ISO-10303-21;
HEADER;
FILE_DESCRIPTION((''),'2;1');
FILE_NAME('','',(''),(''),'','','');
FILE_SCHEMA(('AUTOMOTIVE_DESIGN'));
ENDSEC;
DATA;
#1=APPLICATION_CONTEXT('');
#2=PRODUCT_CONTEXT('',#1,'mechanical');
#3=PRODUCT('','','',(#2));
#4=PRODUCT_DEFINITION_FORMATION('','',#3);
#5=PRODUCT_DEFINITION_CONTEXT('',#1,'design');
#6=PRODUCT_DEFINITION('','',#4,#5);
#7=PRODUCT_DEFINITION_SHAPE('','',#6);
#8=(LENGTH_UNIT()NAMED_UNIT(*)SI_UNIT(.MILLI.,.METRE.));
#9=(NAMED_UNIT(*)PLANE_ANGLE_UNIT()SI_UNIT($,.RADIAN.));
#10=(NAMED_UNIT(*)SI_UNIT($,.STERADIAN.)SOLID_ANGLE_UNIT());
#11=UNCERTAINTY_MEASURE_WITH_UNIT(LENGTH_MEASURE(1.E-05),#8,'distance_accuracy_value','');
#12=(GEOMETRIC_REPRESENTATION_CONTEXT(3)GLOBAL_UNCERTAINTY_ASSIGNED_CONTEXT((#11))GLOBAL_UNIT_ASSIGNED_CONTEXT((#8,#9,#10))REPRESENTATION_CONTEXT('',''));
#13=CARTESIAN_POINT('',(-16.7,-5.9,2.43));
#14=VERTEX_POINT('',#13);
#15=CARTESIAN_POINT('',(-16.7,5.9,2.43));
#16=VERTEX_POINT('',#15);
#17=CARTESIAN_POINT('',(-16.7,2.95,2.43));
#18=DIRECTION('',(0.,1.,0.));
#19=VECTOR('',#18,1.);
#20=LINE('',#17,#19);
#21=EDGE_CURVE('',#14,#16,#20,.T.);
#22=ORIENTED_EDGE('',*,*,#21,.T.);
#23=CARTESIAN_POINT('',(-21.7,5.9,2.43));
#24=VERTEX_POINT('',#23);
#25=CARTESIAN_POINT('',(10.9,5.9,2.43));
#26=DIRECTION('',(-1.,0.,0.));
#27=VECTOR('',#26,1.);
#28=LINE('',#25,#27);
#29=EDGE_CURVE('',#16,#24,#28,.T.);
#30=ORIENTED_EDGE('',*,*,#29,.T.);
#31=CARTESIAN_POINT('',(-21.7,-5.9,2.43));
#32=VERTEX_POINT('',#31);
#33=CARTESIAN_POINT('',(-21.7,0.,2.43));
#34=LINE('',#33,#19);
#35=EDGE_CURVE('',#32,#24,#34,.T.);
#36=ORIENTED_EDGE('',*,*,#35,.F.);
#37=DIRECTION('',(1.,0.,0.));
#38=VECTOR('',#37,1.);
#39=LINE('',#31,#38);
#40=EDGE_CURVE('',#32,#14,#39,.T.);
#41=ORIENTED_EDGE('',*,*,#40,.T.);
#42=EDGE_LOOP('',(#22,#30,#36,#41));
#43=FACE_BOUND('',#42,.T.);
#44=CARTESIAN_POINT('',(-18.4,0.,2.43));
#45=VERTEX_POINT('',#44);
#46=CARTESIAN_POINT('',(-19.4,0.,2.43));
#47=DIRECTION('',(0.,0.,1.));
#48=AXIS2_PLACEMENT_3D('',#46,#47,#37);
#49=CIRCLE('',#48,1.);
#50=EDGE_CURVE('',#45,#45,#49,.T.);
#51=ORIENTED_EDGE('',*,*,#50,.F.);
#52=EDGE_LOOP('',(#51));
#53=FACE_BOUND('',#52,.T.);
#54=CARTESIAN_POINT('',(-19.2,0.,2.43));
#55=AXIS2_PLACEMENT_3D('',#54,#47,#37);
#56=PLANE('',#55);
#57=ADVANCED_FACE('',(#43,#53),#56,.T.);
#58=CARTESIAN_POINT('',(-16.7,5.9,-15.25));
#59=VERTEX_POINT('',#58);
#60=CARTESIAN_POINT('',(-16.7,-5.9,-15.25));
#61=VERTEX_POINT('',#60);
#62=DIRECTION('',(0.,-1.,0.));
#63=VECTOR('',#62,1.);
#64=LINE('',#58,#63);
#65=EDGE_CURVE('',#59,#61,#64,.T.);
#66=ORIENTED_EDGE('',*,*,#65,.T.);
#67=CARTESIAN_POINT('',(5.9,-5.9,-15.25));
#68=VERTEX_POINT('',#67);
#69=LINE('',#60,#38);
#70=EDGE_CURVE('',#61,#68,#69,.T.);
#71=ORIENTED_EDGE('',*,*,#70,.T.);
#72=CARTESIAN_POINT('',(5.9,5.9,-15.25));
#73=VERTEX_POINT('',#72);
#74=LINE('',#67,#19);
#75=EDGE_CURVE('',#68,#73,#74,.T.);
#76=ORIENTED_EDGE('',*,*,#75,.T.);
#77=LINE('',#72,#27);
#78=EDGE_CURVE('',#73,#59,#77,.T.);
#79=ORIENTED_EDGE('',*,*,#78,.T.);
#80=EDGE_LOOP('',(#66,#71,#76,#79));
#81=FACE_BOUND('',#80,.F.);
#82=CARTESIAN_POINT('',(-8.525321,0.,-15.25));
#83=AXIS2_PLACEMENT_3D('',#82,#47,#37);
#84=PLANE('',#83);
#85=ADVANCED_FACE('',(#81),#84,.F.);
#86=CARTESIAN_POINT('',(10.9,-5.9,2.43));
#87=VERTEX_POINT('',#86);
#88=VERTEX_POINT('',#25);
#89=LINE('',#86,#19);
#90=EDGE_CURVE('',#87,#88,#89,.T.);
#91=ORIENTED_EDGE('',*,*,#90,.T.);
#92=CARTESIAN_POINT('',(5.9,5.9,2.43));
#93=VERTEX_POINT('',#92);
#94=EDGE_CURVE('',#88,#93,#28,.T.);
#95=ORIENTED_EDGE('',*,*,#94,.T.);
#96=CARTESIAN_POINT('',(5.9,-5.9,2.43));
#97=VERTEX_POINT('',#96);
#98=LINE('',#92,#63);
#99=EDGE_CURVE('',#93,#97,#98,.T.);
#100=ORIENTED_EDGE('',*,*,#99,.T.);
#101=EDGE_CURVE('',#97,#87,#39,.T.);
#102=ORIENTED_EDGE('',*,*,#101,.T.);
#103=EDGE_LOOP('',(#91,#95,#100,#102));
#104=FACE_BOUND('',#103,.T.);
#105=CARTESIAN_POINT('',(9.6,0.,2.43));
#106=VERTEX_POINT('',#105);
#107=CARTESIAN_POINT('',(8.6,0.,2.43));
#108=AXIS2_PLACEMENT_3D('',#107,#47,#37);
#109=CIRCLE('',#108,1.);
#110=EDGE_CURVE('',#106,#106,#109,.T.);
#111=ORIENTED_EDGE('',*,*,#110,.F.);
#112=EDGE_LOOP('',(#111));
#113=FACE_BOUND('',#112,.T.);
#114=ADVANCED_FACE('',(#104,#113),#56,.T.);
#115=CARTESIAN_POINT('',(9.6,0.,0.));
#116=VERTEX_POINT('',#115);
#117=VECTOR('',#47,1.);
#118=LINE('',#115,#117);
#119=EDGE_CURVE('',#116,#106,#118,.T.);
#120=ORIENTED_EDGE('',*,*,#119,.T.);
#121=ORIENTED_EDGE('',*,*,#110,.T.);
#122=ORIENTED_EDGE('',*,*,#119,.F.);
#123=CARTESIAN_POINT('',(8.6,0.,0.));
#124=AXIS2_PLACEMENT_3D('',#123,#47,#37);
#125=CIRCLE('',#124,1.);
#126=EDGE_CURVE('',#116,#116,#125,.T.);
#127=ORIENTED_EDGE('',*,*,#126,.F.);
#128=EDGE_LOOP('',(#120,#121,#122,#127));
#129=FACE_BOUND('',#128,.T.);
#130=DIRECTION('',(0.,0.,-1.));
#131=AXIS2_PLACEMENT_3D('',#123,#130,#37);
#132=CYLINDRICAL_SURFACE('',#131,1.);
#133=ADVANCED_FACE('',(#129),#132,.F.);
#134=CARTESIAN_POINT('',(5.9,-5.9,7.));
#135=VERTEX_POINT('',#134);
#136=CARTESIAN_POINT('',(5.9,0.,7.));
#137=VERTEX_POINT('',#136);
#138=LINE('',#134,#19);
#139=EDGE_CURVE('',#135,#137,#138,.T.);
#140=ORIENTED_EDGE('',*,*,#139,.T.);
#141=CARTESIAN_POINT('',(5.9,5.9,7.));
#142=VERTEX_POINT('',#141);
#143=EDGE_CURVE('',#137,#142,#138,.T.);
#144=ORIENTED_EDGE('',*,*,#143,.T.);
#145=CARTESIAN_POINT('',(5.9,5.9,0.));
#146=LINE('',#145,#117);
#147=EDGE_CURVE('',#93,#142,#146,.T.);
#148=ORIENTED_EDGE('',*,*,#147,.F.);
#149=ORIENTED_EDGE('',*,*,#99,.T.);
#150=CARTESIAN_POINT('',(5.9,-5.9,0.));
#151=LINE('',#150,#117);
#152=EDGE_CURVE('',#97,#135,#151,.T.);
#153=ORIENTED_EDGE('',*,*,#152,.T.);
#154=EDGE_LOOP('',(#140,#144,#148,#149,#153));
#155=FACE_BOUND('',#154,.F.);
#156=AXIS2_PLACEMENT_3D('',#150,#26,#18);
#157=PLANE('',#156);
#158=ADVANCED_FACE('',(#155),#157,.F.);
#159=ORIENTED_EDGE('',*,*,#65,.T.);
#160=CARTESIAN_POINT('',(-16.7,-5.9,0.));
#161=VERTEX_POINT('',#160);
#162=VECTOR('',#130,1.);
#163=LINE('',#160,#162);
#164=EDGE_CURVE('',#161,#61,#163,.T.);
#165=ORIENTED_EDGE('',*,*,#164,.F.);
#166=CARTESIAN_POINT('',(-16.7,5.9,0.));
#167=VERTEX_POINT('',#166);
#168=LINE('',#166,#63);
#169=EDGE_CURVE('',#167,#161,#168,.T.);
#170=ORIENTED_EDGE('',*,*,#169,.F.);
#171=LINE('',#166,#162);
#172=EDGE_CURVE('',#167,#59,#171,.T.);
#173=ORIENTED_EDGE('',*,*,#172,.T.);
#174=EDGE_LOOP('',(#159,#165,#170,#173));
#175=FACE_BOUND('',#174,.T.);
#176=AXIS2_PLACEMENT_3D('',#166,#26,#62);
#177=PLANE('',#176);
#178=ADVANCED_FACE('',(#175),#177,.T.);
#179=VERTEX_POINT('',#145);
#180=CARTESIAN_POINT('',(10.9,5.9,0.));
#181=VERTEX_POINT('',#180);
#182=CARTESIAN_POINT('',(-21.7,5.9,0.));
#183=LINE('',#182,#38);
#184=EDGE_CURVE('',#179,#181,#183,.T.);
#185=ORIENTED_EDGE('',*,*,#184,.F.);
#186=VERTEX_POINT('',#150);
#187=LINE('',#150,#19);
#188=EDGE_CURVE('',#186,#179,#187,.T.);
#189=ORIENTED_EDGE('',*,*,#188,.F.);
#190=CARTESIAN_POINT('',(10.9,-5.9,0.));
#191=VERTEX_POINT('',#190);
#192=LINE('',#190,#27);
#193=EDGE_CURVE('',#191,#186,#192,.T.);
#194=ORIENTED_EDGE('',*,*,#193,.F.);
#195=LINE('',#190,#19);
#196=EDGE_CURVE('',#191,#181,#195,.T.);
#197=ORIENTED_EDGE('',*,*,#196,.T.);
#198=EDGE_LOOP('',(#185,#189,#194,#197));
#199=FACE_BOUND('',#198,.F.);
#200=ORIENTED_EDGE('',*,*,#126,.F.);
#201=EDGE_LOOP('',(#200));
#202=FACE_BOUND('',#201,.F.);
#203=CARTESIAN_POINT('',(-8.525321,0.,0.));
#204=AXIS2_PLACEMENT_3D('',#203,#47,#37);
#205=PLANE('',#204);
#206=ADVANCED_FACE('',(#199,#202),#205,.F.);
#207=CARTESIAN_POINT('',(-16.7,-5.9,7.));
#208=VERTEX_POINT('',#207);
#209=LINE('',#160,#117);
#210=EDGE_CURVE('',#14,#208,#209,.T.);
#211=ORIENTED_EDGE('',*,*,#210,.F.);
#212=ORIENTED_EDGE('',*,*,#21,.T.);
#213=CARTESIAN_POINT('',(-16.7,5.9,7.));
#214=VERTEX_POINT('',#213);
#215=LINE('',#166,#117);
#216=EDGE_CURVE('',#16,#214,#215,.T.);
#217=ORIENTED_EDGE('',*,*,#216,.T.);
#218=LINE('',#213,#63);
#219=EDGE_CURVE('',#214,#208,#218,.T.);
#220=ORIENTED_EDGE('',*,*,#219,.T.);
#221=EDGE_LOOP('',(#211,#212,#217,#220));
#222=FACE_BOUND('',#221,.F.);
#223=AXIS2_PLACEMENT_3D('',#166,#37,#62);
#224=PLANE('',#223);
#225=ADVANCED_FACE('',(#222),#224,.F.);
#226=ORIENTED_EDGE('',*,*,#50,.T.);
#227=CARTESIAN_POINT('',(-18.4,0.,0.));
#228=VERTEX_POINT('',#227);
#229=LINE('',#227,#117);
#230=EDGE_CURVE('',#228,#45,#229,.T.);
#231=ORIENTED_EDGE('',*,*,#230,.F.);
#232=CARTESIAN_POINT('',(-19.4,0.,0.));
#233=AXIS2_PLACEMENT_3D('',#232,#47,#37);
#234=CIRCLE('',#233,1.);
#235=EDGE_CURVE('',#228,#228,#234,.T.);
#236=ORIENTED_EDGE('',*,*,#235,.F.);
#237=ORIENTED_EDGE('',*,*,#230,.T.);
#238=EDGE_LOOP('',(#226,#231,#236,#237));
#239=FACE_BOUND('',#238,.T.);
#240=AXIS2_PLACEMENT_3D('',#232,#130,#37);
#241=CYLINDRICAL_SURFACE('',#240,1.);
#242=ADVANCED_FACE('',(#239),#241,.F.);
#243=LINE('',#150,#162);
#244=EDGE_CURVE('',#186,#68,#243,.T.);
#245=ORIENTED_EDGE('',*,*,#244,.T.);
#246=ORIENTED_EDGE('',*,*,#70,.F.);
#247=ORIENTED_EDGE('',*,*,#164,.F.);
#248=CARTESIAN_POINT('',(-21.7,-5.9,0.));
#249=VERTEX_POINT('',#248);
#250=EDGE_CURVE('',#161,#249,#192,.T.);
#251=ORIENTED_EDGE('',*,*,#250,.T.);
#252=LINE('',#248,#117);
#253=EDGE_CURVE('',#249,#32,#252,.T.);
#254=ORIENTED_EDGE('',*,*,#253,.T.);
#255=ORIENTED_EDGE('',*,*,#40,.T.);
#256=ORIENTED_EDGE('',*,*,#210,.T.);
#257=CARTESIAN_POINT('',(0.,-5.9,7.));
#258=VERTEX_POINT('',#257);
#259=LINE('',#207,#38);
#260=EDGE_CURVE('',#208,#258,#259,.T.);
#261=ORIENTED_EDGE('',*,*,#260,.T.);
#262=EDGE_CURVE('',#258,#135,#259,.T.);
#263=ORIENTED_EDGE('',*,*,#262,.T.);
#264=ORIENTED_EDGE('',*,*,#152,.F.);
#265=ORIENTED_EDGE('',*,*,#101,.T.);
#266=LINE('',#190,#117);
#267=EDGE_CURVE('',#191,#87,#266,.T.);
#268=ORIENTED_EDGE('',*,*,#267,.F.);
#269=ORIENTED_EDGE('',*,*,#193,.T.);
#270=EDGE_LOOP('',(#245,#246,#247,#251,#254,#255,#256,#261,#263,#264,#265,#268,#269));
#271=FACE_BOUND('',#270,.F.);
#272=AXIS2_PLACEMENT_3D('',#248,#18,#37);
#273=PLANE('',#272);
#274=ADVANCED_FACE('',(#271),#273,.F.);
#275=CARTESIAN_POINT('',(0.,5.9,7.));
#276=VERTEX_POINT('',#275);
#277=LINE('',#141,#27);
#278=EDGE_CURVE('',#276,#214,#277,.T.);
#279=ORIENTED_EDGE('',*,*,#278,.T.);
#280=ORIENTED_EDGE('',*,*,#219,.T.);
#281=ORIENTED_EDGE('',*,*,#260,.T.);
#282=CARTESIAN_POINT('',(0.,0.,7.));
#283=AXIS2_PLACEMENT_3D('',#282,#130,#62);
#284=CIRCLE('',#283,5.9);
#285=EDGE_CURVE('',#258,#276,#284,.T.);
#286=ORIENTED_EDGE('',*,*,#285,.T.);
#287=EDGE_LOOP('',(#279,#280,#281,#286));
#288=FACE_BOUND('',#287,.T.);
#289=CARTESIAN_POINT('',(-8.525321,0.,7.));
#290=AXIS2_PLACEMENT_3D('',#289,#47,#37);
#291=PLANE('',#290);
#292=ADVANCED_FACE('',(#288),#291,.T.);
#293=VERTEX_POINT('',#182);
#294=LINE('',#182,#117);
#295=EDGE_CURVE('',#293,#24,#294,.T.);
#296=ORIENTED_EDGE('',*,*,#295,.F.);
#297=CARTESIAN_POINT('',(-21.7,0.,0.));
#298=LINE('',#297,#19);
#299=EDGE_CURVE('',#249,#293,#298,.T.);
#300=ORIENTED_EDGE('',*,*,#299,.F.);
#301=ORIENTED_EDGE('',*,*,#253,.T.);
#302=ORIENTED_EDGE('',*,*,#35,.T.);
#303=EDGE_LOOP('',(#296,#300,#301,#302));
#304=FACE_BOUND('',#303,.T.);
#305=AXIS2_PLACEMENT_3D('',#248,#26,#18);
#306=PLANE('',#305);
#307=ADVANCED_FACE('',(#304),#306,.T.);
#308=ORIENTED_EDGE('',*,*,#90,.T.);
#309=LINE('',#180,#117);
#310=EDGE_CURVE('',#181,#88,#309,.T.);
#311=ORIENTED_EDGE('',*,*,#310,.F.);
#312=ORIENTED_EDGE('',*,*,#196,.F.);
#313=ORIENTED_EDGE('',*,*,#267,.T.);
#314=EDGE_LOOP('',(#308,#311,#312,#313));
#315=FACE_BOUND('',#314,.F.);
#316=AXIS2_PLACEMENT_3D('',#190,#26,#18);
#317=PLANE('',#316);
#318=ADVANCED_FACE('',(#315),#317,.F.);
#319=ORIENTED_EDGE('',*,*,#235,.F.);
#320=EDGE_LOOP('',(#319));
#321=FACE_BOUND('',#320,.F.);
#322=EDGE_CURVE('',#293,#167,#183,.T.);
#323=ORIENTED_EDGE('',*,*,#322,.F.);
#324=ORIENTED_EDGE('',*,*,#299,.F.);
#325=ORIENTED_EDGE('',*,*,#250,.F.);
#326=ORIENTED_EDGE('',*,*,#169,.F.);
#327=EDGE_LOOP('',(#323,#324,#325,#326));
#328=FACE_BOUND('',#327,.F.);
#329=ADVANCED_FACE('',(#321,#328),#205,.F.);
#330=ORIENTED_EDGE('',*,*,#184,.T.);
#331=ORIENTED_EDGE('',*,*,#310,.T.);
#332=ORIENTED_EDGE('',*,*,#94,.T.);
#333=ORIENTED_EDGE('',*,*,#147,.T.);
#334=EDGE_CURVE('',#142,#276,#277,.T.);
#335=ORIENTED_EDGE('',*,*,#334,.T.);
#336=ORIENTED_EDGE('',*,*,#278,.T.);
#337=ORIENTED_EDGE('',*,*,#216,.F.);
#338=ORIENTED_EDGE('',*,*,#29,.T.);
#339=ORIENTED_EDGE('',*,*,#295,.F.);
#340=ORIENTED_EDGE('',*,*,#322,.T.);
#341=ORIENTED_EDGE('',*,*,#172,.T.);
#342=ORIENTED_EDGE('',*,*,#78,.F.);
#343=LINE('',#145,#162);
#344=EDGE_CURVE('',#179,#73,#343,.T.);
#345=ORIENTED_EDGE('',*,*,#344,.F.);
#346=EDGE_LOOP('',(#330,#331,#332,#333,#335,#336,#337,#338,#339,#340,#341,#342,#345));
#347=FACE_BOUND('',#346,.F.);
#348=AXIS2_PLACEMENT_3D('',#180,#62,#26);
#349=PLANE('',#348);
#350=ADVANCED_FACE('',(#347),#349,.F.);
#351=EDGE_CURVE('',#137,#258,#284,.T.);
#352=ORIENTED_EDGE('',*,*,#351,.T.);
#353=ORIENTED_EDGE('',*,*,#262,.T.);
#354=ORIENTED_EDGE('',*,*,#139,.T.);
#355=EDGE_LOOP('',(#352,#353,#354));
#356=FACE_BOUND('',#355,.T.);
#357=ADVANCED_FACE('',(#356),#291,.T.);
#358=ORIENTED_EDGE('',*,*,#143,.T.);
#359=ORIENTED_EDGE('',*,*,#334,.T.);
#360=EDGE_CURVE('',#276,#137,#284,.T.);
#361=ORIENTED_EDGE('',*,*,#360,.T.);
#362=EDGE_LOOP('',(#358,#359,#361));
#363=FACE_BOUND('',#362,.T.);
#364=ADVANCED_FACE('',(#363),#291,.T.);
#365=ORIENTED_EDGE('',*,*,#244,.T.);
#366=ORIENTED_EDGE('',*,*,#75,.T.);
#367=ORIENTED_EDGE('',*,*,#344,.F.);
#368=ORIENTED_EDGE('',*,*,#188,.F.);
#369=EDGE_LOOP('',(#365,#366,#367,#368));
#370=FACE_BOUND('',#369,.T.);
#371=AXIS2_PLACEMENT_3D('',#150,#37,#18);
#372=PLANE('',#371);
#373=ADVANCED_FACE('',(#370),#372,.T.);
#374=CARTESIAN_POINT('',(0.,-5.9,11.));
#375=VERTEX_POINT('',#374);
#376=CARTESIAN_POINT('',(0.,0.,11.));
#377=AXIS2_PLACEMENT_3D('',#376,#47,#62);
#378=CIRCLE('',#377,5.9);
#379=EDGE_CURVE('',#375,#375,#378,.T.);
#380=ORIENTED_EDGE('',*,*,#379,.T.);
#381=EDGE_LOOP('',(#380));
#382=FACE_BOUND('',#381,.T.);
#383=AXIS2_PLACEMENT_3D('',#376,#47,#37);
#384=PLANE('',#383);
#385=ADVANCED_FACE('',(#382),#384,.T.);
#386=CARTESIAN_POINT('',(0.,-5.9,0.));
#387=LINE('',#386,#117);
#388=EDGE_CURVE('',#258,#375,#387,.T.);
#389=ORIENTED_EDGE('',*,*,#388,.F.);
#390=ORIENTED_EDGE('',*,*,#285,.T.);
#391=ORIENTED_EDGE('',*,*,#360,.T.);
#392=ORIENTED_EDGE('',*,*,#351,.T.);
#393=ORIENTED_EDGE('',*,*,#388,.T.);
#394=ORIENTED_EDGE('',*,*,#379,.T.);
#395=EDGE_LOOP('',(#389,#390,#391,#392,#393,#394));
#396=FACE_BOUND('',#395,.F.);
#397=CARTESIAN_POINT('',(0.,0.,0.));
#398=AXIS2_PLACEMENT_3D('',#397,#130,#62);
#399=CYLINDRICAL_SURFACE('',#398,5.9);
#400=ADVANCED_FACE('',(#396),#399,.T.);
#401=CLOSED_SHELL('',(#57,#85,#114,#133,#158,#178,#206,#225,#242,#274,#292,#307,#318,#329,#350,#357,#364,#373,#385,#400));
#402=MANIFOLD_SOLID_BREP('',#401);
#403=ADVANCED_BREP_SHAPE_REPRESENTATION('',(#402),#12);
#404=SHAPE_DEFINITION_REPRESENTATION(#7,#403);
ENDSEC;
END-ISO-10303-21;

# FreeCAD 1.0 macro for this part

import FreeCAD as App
import Part
import Sketcher
Q = App.Units.Quantity


def add_polygon(sketch, points):
    """Adds a closed chain of lines whose ends are joined by coincident constraints."""
    first, n = sketch.GeometryCount, len(points)
    for a, b in zip(points, points[1:] + points[:1]):
        sketch.addGeometry(Part.LineSegment(App.Vector(*a, 0), App.Vector(*b, 0)), False)
    for i in range(n):
        sketch.addConstraint(Sketcher.Constraint("Coincident", first + i, 2, first + (i + 1) % n, 1))

doc = App.newDocument("Part")
body = doc.addObject("PartDesign::Body", "Body")

sketch1 = body.newObject("Sketcher::SketchObject", "Sketch")
sketch1.AttachmentSupport = (doc.getObject("XY_Plane"), [""])
sketch1.MapMode = "FlatFace"
add_polygon(sketch1, [(-21.7, 5.9), (-21.7, -5.9), (10.9, -5.9), (10.9, 5.9)])
sketch1.addGeometry(Part.Circle(App.Vector(-19.4, 0, 0), App.Vector(0, 0, 1), 1), False)
sketch1.addGeometry(Part.Circle(App.Vector(8.6, 0, 0), App.Vector(0, 0, 1), 1), False)
sketch1.addConstraint([
    Sketcher.Constraint("Vertical", 0),
    Sketcher.Constraint("Horizontal", 1),
    Sketcher.Constraint("Vertical", 2),
    Sketcher.Constraint("Horizontal", 3),
    Sketcher.Constraint("Equal", 4, 5),
    Sketcher.Constraint("PointOnObject", 4, 3, -1),
    Sketcher.Constraint("PointOnObject", 5, 3, -1),
    Sketcher.Constraint("Diameter", 4, Q("2 mm")),
    Sketcher.Constraint("DistanceX", 1, 1, 1, 2, Q("32.6 mm")),
    Sketcher.Constraint("DistanceY", 0, 2, 0, 1, Q("11.8 mm")),
    Sketcher.Constraint("DistanceX", 4, 3, 5, 3, Q("28 mm")),
    Sketcher.Constraint("DistanceX", 4, 3, -1, 1, Q("19.4 mm")),
    Sketcher.Constraint("DistanceX", 0, 2, -1, 1, Q("21.7 mm")),
    Sketcher.Constraint("DistanceY", 0, 2, -1, 1, Q("5.9 mm")),
])
pad1 = body.newObject("PartDesign::Pad", "Pad")
pad1.Profile = sketch1
pad1.Length = 2.43

sketch2 = body.newObject("Sketcher::SketchObject", "Sketch001")
sketch2.AttachmentSupport = (doc.getObject("XY_Plane"), [""])
sketch2.MapMode = "FlatFace"
add_polygon(sketch2, [(-17, 6), (-17, -6), (6, -6), (6, 6)])
sketch2.addConstraint([
    Sketcher.Constraint("Vertical", 0),
    Sketcher.Constraint("Horizontal", 1),
    Sketcher.Constraint("Vertical", 2),
    Sketcher.Constraint("Horizontal", 3),
    Sketcher.Constraint("DistanceX", 1, 1, 1, 2, Q("22.6 mm")),
    Sketcher.Constraint("DistanceY", 0, 2, 0, 1, Q("11.8 mm")),
    Sketcher.Constraint("DistanceX", 0, 2, -1, 1, Q("16.7 mm")),
    Sketcher.Constraint("DistanceY", 0, 2, -1, 1, Q("5.9 mm")),
])
pad2 = body.newObject("PartDesign::Pad", "Pad001")
pad2.Profile = sketch2
pad2.Length = 7

sketch3 = body.newObject("Sketcher::SketchObject", "Sketch002")
sketch3.AttachmentSupport = (doc.getObject("XY_Plane"), [""])
sketch3.MapMode = "FlatFace"
sketch3.addGeometry(Part.Circle(App.Vector(0, 0, 0), App.Vector(0, 0, 1), 6), False)
sketch3.addConstraint([
    Sketcher.Constraint("Coincident", 0, 3, -1, 1),
    Sketcher.Constraint("Diameter", 0, Q("11.8 mm")),
])
pad3 = body.newObject("PartDesign::Pad", "Pad002")
pad3.Profile = sketch3
pad3.Length = 11

sketch4 = body.newObject("Sketcher::SketchObject", "Sketch003")
sketch4.AttachmentSupport = (doc.getObject("XY_Plane"), [""])
sketch4.MapMode = "FlatFace"
add_polygon(sketch4, [(-17, 6), (-17, -6), (6, -6), (6, 6)])
sketch4.addConstraint([
    Sketcher.Constraint("Vertical", 0),
    Sketcher.Constraint("Horizontal", 1),
    Sketcher.Constraint("Vertical", 2),
    Sketcher.Constraint("Horizontal", 3),
    Sketcher.Constraint("DistanceX", 1, 1, 1, 2, Q("22.6 mm")),
    Sketcher.Constraint("DistanceY", 0, 2, 0, 1, Q("11.8 mm")),
    Sketcher.Constraint("DistanceX", 0, 2, -1, 1, Q("16.7 mm")),
    Sketcher.Constraint("DistanceY", 0, 2, -1, 1, Q("5.9 mm")),
])
pad4 = body.newObject("PartDesign::Pad", "Pad003")
pad4.Profile = sketch4
pad4.Length = 15.25
pad4.Reversed = True

doc.recompute()
